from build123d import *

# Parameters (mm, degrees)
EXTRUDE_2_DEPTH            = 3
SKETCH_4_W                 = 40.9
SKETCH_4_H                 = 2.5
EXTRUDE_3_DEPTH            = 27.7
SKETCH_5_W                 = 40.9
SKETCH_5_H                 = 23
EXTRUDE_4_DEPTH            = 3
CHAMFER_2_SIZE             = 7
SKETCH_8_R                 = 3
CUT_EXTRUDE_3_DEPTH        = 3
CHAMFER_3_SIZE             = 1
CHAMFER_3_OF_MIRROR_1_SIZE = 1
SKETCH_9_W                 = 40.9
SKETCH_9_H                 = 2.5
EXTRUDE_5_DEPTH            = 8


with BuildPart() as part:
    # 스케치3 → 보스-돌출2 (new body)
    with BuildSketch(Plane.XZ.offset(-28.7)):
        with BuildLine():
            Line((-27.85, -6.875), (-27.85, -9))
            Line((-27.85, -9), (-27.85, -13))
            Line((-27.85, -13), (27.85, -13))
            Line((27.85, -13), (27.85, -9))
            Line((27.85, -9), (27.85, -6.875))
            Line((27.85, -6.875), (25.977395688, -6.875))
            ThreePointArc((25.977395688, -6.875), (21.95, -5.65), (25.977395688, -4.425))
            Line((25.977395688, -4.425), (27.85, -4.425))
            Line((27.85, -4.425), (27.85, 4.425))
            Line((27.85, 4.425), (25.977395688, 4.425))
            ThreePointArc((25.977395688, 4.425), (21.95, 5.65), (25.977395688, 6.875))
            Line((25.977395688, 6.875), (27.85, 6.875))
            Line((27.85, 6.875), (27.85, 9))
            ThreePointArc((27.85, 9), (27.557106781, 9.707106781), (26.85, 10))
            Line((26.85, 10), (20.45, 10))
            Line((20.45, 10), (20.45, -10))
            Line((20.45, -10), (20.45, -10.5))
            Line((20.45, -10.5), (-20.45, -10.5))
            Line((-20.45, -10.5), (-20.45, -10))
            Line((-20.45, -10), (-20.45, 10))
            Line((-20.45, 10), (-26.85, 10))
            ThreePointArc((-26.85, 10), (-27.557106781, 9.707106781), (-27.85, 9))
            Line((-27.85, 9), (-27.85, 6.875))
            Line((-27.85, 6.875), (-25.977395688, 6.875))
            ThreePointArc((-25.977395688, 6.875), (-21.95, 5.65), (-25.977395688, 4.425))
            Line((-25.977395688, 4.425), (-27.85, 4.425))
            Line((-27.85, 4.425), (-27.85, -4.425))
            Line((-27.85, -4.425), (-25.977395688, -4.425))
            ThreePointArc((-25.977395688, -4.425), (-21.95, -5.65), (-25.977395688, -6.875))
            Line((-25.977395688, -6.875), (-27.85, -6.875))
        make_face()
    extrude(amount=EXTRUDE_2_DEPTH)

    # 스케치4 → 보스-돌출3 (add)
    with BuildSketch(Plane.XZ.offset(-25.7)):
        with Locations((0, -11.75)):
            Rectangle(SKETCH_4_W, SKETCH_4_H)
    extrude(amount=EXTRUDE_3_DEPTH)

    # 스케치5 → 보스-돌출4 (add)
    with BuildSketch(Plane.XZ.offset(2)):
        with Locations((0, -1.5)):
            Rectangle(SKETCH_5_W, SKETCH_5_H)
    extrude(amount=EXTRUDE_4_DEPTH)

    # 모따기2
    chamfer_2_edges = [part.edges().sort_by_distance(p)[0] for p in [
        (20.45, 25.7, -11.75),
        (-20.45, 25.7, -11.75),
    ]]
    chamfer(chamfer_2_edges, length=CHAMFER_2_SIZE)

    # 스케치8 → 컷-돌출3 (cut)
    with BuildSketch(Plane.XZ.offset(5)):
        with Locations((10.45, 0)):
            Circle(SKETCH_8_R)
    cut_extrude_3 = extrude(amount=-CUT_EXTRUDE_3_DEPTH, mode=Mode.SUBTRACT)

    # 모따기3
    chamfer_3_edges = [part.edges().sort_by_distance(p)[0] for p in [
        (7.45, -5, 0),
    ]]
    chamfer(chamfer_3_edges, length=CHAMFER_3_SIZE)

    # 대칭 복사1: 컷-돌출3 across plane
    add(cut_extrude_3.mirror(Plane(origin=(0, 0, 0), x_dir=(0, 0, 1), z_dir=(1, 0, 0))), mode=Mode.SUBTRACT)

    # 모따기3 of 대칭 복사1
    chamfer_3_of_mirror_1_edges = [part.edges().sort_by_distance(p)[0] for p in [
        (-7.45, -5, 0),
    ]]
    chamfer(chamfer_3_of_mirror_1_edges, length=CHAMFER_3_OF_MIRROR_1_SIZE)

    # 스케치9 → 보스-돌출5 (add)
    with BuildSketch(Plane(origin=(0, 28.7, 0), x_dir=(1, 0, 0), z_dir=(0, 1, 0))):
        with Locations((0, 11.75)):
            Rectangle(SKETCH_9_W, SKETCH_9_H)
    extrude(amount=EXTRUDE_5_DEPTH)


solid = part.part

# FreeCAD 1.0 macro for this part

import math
import FreeCAD as App
import Part
import Sketcher

V = App.Vector


def edges_at(feature, points):
    """Names of the edges that pass closest to the given points."""
    edges = feature.Shape.Edges
    near = lambda p: min(range(len(edges)), key=lambda i: edges[i].distToShape(Part.Vertex(*p))[0])
    return sorted({f"Edge{near(p) + 1}" for p in points})


def add_polygon(sketch, points):
    """Adds a closed chain of lines whose ends are joined by coincident constraints."""
    first, n = sketch.GeometryCount, len(points)
    for a, b in zip(points, points[1:] + points[:1]):
        sketch.addGeometry(Part.LineSegment(App.Vector(*a, 0), App.Vector(*b, 0)), False)
    for i in range(n):
        sketch.addConstraint(Sketcher.Constraint("Coincident", first + i, 2, first + (i + 1) % n, 1))

doc = App.newDocument("Part")
body = doc.addObject("PartDesign::Body", "Body")

# Sketch on XZ plane
sketch1 = body.newObject("Sketcher::SketchObject", "Sketch")
sketch1.AttachmentSupport = (doc.getObject("XZ_Plane"), [""])
sketch1.MapMode = "FlatFace"
sketch1.AttachmentOffset = App.Placement(V(0, 0, -28.7), App.Rotation())
sketch1.addGeometry([
    Part.LineSegment(V(-27.9, -6.9, 0), V(-27.9, -13, 0)),  # 0
    Part.LineSegment(V(-27.9, -13, 0), V(27.9, -13, 0)),  # 1
    Part.LineSegment(V(27.9, -13, 0), V(27.9, -6.9, 0)),  # 2
    Part.LineSegment(V(27.9, -6.9, 0), V(26, -6.9, 0)),  # 3
    Part.ArcOfCircle(Part.Circle(V(24.1, -5.7, 0), V(0, 0, 1), 2.2), math.radians(34), math.radians(326)),  # 4
    Part.LineSegment(V(26, -4.4, 0), V(27.9, -4.4, 0)),  # 5
    Part.LineSegment(V(27.9, -4.4, 0), V(27.9, 4.4, 0)),  # 6
    Part.LineSegment(V(27.9, 4.4, 0), V(26, 4.4, 0)),  # 7
    Part.ArcOfCircle(Part.Circle(V(24.1, 5.7, 0), V(0, 0, 1), 2.2), math.radians(34), math.radians(326)),  # 8
    Part.LineSegment(V(26, 6.9, 0), V(27.9, 6.9, 0)),  # 9
    Part.LineSegment(V(27.9, 6.9, 0), V(27.9, 9, 0)),  # 10
    Part.ArcOfCircle(Part.Circle(V(26.8, 9, 0), V(0, 0, 1), 1), math.radians(0), math.radians(90)),  # 11
    Part.LineSegment(V(26.9, 10, 0), V(20.4, 10, 0)),  # 12
    Part.LineSegment(V(20.4, 10, 0), V(20.4, -10.5, 0)),  # 13
    Part.LineSegment(V(20.4, -10.5, 0), V(-20.4, -10.5, 0)),  # 14
    Part.LineSegment(V(-20.4, -10.5, 0), V(-20.4, 10, 0)),  # 15
    Part.LineSegment(V(-20.4, 10, 0), V(-26.9, 10, 0)),  # 16
    Part.ArcOfCircle(Part.Circle(V(-26.8, 9, 0), V(0, 0, 1), 1), math.radians(90), math.radians(180)),  # 17
    Part.LineSegment(V(-27.9, 9, 0), V(-27.9, 6.9, 0)),  # 18
    Part.LineSegment(V(-27.9, 6.9, 0), V(-26, 6.9, 0)),  # 19
    Part.ArcOfCircle(Part.Circle(V(-24.1, 5.7, 0), V(0, 0, 1), 2.2), math.radians(-146), math.radians(146)),  # 20
    Part.LineSegment(V(-26, 4.4, 0), V(-27.9, 4.4, 0)),  # 21
    Part.LineSegment(V(-27.9, 4.4, 0), V(-27.9, -4.4, 0)),  # 22
    Part.LineSegment(V(-27.9, -4.4, 0), V(-26, -4.4, 0)),  # 23
    Part.ArcOfCircle(Part.Circle(V(-24.1, -5.7, 0), V(0, 0, 1), 2.2), math.radians(-146), math.radians(146)),  # 24
    Part.LineSegment(V(-26, -6.9, 0), V(-27.9, -6.9, 0)),  # 25
], False)
sketch1.addConstraint([
    Sketcher.Constraint("Coincident", 0, 2, 1, 1),
    Sketcher.Constraint("Coincident", 1, 2, 2, 1),
    Sketcher.Constraint("Coincident", 2, 2, 3, 1),
    Sketcher.Constraint("Coincident", 3, 2, 4, 2),
    Sketcher.Constraint("Coincident", 4, 1, 5, 1),
    Sketcher.Constraint("Coincident", 5, 2, 6, 1),
    Sketcher.Constraint("Coincident", 6, 2, 7, 1),
    Sketcher.Constraint("Coincident", 7, 2, 8, 2),
    Sketcher.Constraint("Coincident", 8, 1, 9, 1),
    Sketcher.Constraint("Coincident", 9, 2, 10, 1),
    Sketcher.Constraint("Tangent", 10, 2, 11, 1),
    Sketcher.Constraint("Tangent", 11, 2, 12, 1),
    Sketcher.Constraint("Coincident", 12, 2, 13, 1),
    Sketcher.Constraint("Coincident", 13, 2, 14, 1),
    Sketcher.Constraint("Coincident", 14, 2, 15, 1),
    Sketcher.Constraint("Coincident", 15, 2, 16, 1),
    Sketcher.Constraint("Tangent", 16, 2, 17, 1),
    Sketcher.Constraint("Tangent", 17, 2, 18, 1),
    Sketcher.Constraint("Coincident", 18, 2, 19, 1),
    Sketcher.Constraint("Coincident", 19, 2, 20, 2),
    Sketcher.Constraint("Coincident", 20, 1, 21, 1),
    Sketcher.Constraint("Coincident", 21, 2, 22, 1),
    Sketcher.Constraint("Coincident", 22, 2, 23, 1),
    Sketcher.Constraint("Coincident", 23, 2, 24, 2),
    Sketcher.Constraint("Coincident", 24, 1, 25, 1),
    Sketcher.Constraint("Coincident", 25, 2, 0, 1),
    Sketcher.Constraint("Vertical", 0),
    Sketcher.Constraint("Horizontal", 1),
    Sketcher.Constraint("Vertical", 2),
    Sketcher.Constraint("Horizontal", 3),
    Sketcher.Constraint("Horizontal", 5),
    Sketcher.Constraint("Vertical", 6),
    Sketcher.Constraint("Horizontal", 7),
    Sketcher.Constraint("Horizontal", 9),
    Sketcher.Constraint("Vertical", 10),
    Sketcher.Constraint("Horizontal", 12),
    Sketcher.Constraint("Vertical", 13),
    Sketcher.Constraint("Horizontal", 14),
    Sketcher.Constraint("Vertical", 15),
    Sketcher.Constraint("Horizontal", 16),
    Sketcher.Constraint("Vertical", 18),
    Sketcher.Constraint("Horizontal", 19),
    Sketcher.Constraint("Horizontal", 21),
    Sketcher.Constraint("Vertical", 22),
    Sketcher.Constraint("Horizontal", 23),
    Sketcher.Constraint("Horizontal", 25),
    Sketcher.Constraint("Equal", 4, 8),
    Sketcher.Constraint("Equal", 11, 17),
    Sketcher.Constraint("Equal", 8, 20),
    Sketcher.Constraint("Equal", 20, 24),
    Sketcher.Constraint("Symmetric", 4, 3, 20, 3, -1, 1),
    Sketcher.Constraint("Symmetric", 8, 3, 24, 3, -1, 1),
    Sketcher.Constraint("Symmetric", 2, 2, 18, 2, -1, 1),
    Sketcher.Constraint("Symmetric", 5, 2, 21, 2, -1, 1),
    Sketcher.Constraint("Symmetric", 9, 2, 25, 2, -1, 1),
    Sketcher.Constraint("Symmetric", 11, 3, 17, 3, -2),
    Sketcher.Constraint("Symmetric", 8, 3, 20, 3, -2),
    Sketcher.Constraint("Horizontal", 9, 2, 18, 2),
    Sketcher.Constraint("Horizontal", 7, 2, 20, 1),
    Sketcher.Constraint("Horizontal", 5, 2, 22, 2),
    Sketcher.Constraint("Vertical", 3, 2, 4, 1),
    Sketcher.Constraint("Vertical", 2, 2, 5, 2),
    Sketcher.Constraint("Equal", 12, 16),
    Sketcher.Constraint("Radius", 11, 1.0),
    Sketcher.Constraint("Radius", 4, 2.2),
    Sketcher.Constraint("DistanceX", 1, 1, 1, 2, 55.7),
    Sketcher.Constraint("DistanceX", 12, 2, 12, 1, 6.4),
    Sketcher.Constraint("DistanceY", 13, 2, 13, 1, 20.5),
    Sketcher.Constraint("DistanceY", -1, 1, 11, 3, 9.0),
    Sketcher.Constraint("DistanceY", 0, 2, -1, 1, 13.0),
    Sketcher.Constraint("DistanceX", 17, 3, 8, 3, 51.0),
    Sketcher.Constraint("DistanceY", 6, 1, 6, 2, 8.85),
    Sketcher.Constraint("DistanceY", 4, 3, 8, 3, 11.3),
])
pad1 = body.newObject("PartDesign::Pad", "Pad")
pad1.Profile = sketch1
pad1.Length = 3

# Sketch on XZ plane
sketch2 = body.newObject("Sketcher::SketchObject", "Sketch001")
sketch2.AttachmentSupport = (doc.getObject("XZ_Plane"), [""])
sketch2.MapMode = "FlatFace"
sketch2.AttachmentOffset = App.Placement(V(0, 0, -25.7), App.Rotation())
add_polygon(sketch2, [(-20.4, -10.5), (-20.4, -13), (20.4, -13), (20.4, -10.5)])  # lines 0-3
sketch2.addConstraint([
    Sketcher.Constraint("Vertical", 0),
    Sketcher.Constraint("Horizontal", 1),
    Sketcher.Constraint("Vertical", 2),
    Sketcher.Constraint("Horizontal", 3),
    Sketcher.Constraint("DistanceX", 1, 1, 1, 2, 40.9),
    Sketcher.Constraint("DistanceY", 0, 2, 0, 1, 2.5),
    Sketcher.Constraint("DistanceY", 0, 2, -1, 1, 13.0),
    Sketcher.Constraint("DistanceX", 0, 2, -1, 1, 20.45),
])
pad2 = body.newObject("PartDesign::Pad", "Pad001")
pad2.Profile = sketch2
pad2.Length = 27.7

# Sketch on XZ plane
sketch3 = body.newObject("Sketcher::SketchObject", "Sketch002")
sketch3.AttachmentSupport = (doc.getObject("XZ_Plane"), [""])
sketch3.MapMode = "FlatFace"
sketch3.AttachmentOffset = App.Placement(V(0, 0, 2), App.Rotation())
add_polygon(sketch3, [(-20, 10), (-20, -13), (20, -13), (20, 10)])  # lines 0-3
sketch3.addConstraint([
    Sketcher.Constraint("Vertical", 0),
    Sketcher.Constraint("Horizontal", 1),
    Sketcher.Constraint("Vertical", 2),
    Sketcher.Constraint("Horizontal", 3),
    Sketcher.Constraint("DistanceY", 0, 2, 0, 1, 23.0),
    Sketcher.Constraint("DistanceX", 1, 1, 1, 2, 40.9),
    Sketcher.Constraint("DistanceY", 0, 2, -1, 1, 13.0),
    Sketcher.Constraint("DistanceX", 0, 2, -1, 1, 20.45),
])
pad3 = body.newObject("PartDesign::Pad", "Pad002")
pad3.Profile = sketch3
pad3.Length = 3
doc.recompute()

chamfer = body.newObject("PartDesign::Chamfer", "Chamfer")
chamfer.Base = (pad3, edges_at(pad3, [(20.45, 25.7, -11.75), (-20.45, 25.7, -11.75)]))
chamfer.Size = 7

# Sketch on XZ plane
sketch4 = body.newObject("Sketcher::SketchObject", "Sketch003")
sketch4.AttachmentSupport = (doc.getObject("XZ_Plane"), [""])
sketch4.MapMode = "FlatFace"
sketch4.AttachmentOffset = App.Placement(V(0, 0, 5), App.Rotation())
sketch4.addGeometry(Part.Circle(V(10.4, 0, 0), V(0, 0, 1), 3), False)
sketch4.addConstraint([
    Sketcher.Constraint("PointOnObject", 0, 3, -1),
    Sketcher.Constraint("Diameter", 0, 6.0),
    Sketcher.Constraint("DistanceX", -1, 1, 0, 3, 10.45),
])
pocket1 = body.newObject("PartDesign::Pocket", "Pocket")
pocket1.Profile = sketch4
pocket1.Length = 3
doc.recompute()

chamfer2 = body.newObject("PartDesign::Chamfer", "Chamfer001")
chamfer2.Base = (pocket1, edges_at(pocket1, [(7.45, -5, 0)]))
chamfer2.Size = 1
doc.recompute()

mirrored = body.newObject("PartDesign::Mirrored", "Mirrored")
mirrored.Originals = [pocket1]
mirrored.MirrorPlane = (doc.getObject("YZ_Plane"), [""])
body.Tip = mirrored
doc.recompute()

chamfer3 = body.newObject("PartDesign::Chamfer", "Chamfer002")
chamfer3.Base = (mirrored, edges_at(mirrored, [(-7.45, -5, 0)]))
chamfer3.Size = 1

# Sketch on XZ plane
sketch5 = body.newObject("Sketcher::SketchObject", "Sketch004")
sketch5.AttachmentSupport = (doc.getObject("XZ_Plane"), [""])
sketch5.MapMode = "FlatFace"
sketch5.AttachmentOffset = App.Placement(V(0, 0, -28.7), App.Rotation())
add_polygon(sketch5, [(-20.4, -13), (-20.4, -10.5), (20.4, -10.5), (20.4, -13)])  # lines 0-3
sketch5.addConstraint([
    Sketcher.Constraint("Vertical", 0),
    Sketcher.Constraint("Horizontal", 1),
    Sketcher.Constraint("Vertical", 2),
    Sketcher.Constraint("Horizontal", 3),
    Sketcher.Constraint("DistanceX", 1, 1, 1, 2, 40.9),
    Sketcher.Constraint("DistanceY", 0, 1, 0, 2, 2.5),
    Sketcher.Constraint("DistanceY", 2, 2, -1, 1, 13.0),
    Sketcher.Constraint("DistanceX", 0, 2, -1, 1, 20.45),
])
pad4 = body.newObject("PartDesign::Pad", "Pad003")
pad4.Profile = sketch5
pad4.Length = 8
pad4.Reversed = True

doc.recompute()
